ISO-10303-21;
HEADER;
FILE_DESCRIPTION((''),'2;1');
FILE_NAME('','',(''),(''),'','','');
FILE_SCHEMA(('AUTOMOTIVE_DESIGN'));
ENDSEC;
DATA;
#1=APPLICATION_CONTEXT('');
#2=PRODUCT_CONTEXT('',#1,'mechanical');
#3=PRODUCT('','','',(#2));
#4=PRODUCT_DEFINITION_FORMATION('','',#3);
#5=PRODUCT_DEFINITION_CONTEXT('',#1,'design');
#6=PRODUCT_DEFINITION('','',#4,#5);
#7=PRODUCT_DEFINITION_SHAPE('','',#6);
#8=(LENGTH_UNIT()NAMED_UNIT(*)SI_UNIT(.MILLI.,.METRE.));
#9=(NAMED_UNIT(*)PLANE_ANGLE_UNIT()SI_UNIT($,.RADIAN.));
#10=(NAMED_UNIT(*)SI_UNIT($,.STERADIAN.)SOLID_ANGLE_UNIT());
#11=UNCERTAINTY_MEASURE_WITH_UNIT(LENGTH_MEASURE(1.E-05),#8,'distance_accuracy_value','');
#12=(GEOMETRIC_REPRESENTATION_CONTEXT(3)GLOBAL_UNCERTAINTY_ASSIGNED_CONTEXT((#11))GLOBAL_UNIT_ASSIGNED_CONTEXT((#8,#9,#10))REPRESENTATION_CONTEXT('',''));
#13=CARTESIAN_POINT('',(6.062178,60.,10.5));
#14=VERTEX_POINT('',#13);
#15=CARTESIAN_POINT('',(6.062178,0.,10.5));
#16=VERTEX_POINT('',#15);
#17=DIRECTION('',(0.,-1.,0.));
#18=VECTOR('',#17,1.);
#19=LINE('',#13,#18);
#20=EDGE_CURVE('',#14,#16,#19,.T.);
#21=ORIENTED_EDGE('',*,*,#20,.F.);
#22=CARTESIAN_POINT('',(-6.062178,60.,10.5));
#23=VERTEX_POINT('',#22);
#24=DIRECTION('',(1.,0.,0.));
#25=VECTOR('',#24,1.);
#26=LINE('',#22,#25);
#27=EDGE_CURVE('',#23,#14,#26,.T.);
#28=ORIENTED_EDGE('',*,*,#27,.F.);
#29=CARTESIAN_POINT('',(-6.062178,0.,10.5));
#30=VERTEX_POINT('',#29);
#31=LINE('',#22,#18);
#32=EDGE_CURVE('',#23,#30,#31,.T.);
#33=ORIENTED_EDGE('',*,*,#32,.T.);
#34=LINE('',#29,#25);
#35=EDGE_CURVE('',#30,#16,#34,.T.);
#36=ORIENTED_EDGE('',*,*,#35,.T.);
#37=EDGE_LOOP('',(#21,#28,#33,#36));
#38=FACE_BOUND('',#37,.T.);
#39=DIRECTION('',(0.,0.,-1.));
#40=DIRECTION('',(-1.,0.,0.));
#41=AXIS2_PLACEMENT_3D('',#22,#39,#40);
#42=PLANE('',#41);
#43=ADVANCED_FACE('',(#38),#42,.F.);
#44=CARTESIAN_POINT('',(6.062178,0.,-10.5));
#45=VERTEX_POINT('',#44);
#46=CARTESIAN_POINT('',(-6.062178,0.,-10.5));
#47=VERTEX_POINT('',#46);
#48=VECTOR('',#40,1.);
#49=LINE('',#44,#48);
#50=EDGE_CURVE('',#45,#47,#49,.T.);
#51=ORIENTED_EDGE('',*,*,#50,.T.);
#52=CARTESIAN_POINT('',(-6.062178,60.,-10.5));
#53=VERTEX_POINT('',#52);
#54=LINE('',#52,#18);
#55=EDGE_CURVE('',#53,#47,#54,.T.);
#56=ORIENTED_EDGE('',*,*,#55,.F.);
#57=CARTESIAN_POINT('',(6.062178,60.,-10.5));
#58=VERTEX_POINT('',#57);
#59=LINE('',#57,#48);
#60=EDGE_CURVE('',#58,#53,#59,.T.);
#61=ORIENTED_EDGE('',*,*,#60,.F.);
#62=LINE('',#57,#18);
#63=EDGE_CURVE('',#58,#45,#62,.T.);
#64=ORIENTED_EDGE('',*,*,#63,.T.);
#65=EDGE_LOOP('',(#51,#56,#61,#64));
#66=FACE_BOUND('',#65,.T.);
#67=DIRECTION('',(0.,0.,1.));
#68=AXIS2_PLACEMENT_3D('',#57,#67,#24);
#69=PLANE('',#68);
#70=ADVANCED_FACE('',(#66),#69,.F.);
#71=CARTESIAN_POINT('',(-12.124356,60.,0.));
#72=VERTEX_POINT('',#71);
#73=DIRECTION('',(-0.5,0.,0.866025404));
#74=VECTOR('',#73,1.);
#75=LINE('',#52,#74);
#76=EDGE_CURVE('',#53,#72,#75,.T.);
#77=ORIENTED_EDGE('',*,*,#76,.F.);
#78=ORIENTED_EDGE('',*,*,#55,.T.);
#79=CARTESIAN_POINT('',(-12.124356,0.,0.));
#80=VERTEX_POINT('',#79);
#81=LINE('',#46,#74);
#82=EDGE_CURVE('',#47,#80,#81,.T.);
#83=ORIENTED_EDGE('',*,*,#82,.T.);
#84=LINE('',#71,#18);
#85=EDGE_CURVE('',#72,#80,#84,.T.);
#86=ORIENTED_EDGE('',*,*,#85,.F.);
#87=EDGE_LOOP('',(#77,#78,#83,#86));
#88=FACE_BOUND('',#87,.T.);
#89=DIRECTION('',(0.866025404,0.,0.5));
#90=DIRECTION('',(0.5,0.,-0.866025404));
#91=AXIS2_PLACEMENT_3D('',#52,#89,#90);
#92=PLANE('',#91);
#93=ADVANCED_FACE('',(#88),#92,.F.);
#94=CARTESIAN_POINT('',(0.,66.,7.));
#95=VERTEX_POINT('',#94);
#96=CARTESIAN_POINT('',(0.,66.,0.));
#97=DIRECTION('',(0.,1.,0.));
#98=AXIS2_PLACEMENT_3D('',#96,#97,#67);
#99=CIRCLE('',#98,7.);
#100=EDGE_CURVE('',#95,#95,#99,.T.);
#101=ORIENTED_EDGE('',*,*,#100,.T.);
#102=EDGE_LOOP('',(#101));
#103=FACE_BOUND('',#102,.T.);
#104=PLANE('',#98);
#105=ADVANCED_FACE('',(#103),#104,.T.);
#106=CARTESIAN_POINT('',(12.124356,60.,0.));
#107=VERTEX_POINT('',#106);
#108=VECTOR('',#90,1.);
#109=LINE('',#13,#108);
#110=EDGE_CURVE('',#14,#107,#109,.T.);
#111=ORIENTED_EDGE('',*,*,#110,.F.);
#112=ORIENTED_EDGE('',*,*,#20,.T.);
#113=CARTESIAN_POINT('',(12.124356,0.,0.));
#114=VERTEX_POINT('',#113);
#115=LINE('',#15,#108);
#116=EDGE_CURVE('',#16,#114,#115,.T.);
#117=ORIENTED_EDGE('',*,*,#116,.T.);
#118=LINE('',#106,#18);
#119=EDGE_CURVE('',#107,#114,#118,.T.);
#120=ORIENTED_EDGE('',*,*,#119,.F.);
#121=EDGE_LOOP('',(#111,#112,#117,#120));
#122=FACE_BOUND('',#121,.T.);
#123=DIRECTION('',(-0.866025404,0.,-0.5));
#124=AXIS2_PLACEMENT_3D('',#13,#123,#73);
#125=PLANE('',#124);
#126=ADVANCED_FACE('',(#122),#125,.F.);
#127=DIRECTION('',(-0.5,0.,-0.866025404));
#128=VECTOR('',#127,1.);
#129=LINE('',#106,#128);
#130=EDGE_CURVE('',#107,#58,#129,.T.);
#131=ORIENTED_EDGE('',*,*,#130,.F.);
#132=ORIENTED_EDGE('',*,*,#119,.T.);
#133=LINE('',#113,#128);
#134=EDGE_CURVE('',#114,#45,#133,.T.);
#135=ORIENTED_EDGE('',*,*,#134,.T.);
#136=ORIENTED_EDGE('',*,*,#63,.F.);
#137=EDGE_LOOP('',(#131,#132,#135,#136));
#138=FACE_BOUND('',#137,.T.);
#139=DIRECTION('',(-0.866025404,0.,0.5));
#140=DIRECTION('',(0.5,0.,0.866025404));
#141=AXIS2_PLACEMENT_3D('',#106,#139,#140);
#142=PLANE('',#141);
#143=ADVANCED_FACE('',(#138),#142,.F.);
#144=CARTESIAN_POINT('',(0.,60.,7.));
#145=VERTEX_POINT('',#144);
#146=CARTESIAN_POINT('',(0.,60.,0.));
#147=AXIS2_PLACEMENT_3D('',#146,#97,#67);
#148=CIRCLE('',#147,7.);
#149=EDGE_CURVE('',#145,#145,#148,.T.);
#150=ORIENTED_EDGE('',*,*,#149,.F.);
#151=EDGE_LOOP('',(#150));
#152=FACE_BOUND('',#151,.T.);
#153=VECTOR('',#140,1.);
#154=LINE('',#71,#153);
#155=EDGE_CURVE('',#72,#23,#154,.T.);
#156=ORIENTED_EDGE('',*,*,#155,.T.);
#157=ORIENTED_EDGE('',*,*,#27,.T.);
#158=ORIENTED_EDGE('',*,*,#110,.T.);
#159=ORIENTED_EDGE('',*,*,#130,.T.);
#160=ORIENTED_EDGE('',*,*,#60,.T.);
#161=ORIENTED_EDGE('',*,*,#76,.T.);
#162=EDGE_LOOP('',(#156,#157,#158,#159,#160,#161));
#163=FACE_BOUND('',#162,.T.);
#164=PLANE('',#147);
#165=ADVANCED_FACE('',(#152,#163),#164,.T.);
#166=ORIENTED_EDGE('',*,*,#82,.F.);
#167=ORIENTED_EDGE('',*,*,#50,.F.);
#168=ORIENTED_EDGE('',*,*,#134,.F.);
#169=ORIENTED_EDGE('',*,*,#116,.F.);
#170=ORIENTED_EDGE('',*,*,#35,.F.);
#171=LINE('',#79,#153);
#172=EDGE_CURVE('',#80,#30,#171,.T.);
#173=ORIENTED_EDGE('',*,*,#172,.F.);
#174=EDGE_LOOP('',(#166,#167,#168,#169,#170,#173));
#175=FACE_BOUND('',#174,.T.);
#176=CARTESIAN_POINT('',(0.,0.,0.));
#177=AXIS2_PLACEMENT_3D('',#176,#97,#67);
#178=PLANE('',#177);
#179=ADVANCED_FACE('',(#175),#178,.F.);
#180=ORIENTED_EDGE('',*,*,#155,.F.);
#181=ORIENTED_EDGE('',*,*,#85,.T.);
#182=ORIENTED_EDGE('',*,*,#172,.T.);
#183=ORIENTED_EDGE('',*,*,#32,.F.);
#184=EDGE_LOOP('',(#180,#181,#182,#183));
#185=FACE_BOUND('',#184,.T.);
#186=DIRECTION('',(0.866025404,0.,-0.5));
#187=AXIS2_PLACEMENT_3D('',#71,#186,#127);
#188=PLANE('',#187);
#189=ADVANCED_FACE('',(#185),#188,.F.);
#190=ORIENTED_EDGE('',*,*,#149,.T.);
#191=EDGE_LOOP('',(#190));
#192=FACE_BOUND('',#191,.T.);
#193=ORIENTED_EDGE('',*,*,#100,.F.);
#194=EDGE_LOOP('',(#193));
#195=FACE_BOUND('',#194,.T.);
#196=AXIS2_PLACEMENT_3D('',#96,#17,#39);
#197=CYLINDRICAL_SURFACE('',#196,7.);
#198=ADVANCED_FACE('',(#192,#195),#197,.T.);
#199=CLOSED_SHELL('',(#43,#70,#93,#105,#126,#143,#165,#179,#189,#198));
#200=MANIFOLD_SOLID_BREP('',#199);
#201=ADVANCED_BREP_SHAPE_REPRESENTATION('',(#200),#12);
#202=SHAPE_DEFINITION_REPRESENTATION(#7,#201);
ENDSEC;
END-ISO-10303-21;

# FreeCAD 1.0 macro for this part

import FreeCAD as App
import Part
import Sketcher
Q = App.Units.Quantity

doc = App.newDocument("Part")
body = doc.addObject("PartDesign::Body", "Body")

# Sketch on XZ plane
sketch1 = doc.addObject("Sketcher::SketchObject", "Sketch")
body.addObject(sketch1)
sketch1.AttachmentSupport = (doc.XZ_Plane, [""])
sketch1.MapMode = "FlatFace"
sketch1.addGeometry([
    Part.LineSegment(App.Vector(12.124356, 0, 0), App.Vector(6.062178, -10.5, 0)),  # 0
    Part.LineSegment(App.Vector(6.062178, -10.5, 0), App.Vector(-6.062178, -10.5, 0)),  # 1
    Part.LineSegment(App.Vector(-6.062178, -10.5, 0), App.Vector(-12.124356, 0, 0)),  # 2
    Part.LineSegment(App.Vector(-12.124356, 0, 0), App.Vector(-6.062178, 10.5, 0)),  # 3
    Part.LineSegment(App.Vector(-6.062178, 10.5, 0), App.Vector(6.062178, 10.5, 0)),  # 4
    Part.LineSegment(App.Vector(6.062178, 10.5, 0), App.Vector(12.124356, 0, 0)),  # 5
    Part.Circle(App.Vector(0, 0, 0), App.Vector(0, 0, 1), 7),  # 6
], False)
sketch1.addConstraint([
    Sketcher.Constraint("Coincident", 0, 2, 1, 1),
    Sketcher.Constraint("Coincident", 1, 2, 2, 1),
    Sketcher.Constraint("Coincident", 2, 2, 3, 1),
    Sketcher.Constraint("Coincident", 3, 2, 4, 1),
    Sketcher.Constraint("Coincident", 4, 2, 5, 1),
    Sketcher.Constraint("Coincident", 5, 2, 0, 1),
    Sketcher.Constraint("Horizontal", 1),
    Sketcher.Constraint("Horizontal", 4),
    Sketcher.Constraint("Coincident", 6, 3, -1, 1),
    Sketcher.Constraint("Symmetric", 0, 2, 3, 2, -1, 1),
    Sketcher.Constraint("Symmetric", 2, 2, 5, 2, -1, 1),
    Sketcher.Constraint("PointOnObject", 2, 2, -1),
    Sketcher.Constraint("Parallel", 2, 5),
    Sketcher.Constraint("Vertical", 1, 2, 3, 2),
    Sketcher.Constraint("Diameter", 6, 14.0),
    Sketcher.Constraint("Angle", 0, Q("-120 deg")),
    Sketcher.Constraint("DistanceY", 1, 2, 3, 2, 21.0),
    Sketcher.Constraint("DistanceX", 1, 2, 1, 1, 12.124356),
])
pad1 = doc.addObject("PartDesign::Pad", "Pad")
body.addObject(pad1)
pad1.Profile = sketch1
pad1.Length = 60
pad1.Reversed = True

# Sketch on XZ plane
sketch2 = doc.addObject("Sketcher::SketchObject", "Sketch001")
body.addObject(sketch2)
sketch2.AttachmentSupport = (doc.XZ_Plane, [""])
sketch2.MapMode = "FlatFace"
sketch2.addGeometry(Part.Circle(App.Vector(0, 0, 0), App.Vector(0, 0, 1), 7), False)
sketch2.addConstraint([
    Sketcher.Constraint("Coincident", 0, 3, -1, 1),
    Sketcher.Constraint("Diameter", 0, 14.0),
])
pad2 = doc.addObject("PartDesign::Pad", "Pad001")
body.addObject(pad2)
pad2.Profile = sketch2
pad2.Length = 66
pad2.Reversed = True

doc.recompute()
